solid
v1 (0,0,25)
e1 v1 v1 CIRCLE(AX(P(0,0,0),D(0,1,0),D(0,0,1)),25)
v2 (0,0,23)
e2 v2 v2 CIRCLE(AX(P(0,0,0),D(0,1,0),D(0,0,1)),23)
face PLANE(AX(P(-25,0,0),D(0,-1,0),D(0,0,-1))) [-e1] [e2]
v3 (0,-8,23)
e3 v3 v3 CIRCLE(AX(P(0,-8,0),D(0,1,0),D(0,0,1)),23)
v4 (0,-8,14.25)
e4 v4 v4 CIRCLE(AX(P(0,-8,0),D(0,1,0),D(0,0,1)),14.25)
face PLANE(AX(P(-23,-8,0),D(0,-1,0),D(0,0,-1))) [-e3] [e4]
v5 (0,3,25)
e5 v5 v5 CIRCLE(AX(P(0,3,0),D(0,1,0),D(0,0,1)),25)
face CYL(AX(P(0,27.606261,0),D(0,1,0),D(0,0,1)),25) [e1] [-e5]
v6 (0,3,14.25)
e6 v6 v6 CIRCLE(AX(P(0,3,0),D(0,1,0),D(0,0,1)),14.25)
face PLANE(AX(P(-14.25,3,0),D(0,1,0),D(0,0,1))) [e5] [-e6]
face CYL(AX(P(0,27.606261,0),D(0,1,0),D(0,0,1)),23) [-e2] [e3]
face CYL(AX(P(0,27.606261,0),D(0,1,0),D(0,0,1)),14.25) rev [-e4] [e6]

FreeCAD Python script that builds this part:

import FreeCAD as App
import Part
import Sketcher
Q = App.Units.Quantity


def add_polygon(sketch, points):
    """Adds a closed chain of lines whose ends are joined by coincident constraints."""
    first, n = sketch.GeometryCount, len(points)
    for a, b in zip(points, points[1:] + points[:1]):
        sketch.addGeometry(Part.LineSegment(App.Vector(*a, 0), App.Vector(*b, 0)), False)
    for i in range(n):
        sketch.addConstraint(Sketcher.Constraint("Coincident", first + i, 2, first + (i + 1) % n, 1))

doc = App.newDocument("Part")
body = doc.addObject("PartDesign::Body", "Body")

# Sketch on XY plane
sketch1 = body.newObject("Sketcher::SketchObject", "Sketch")
sketch1.AttachmentSupport = (doc.getObject("XY_Plane"), [""])
sketch1.MapMode = "FlatFace"
add_polygon(sketch1, [(-14.25, -8), (-14.25, 3), (-25, 3), (-25, 0), (-23, 0), (-23, -8)])  # lines 0-5
sketch1.addConstraint(Sketcher.Constraint("Vertical", 0))
sketch1.addConstraint(Sketcher.Constraint("Horizontal", 1))
sketch1.addConstraint(Sketcher.Constraint("Vertical", 2))
sketch1.addConstraint(Sketcher.Constraint("Horizontal", 3))
sketch1.addConstraint(Sketcher.Constraint("Vertical", 4))
sketch1.addConstraint(Sketcher.Constraint("Horizontal", 5))
sketch1.addConstraint(Sketcher.Constraint("PointOnObject", 2, 2, -1))
sketch1.addConstraint(Sketcher.Constraint("DistanceX", 3, 1, 3, 2, Q("2 mm")))
sketch1.addConstraint(Sketcher.Constraint("DistanceY", 0, 1, 0, 2, Q("11 mm")))
sketch1.addConstraint(Sketcher.Constraint("DistanceY", 2, 2, 2, 1, Q("3 mm")))
sketch1.addConstraint(Sketcher.Constraint("DistanceX", 1, 2, -1, 1, Q("25 mm")))
sketch1.addConstraint(Sketcher.Constraint("DistanceX", 1, 2, 1, 1, Q("10.75 mm")))
revolution = body.newObject("PartDesign::Revolution", "Revolution")
revolution.Profile = sketch1
revolution.ReferenceAxis = (sketch1, ["V_Axis"])
revolution.Angle = 360

doc.recompute()
